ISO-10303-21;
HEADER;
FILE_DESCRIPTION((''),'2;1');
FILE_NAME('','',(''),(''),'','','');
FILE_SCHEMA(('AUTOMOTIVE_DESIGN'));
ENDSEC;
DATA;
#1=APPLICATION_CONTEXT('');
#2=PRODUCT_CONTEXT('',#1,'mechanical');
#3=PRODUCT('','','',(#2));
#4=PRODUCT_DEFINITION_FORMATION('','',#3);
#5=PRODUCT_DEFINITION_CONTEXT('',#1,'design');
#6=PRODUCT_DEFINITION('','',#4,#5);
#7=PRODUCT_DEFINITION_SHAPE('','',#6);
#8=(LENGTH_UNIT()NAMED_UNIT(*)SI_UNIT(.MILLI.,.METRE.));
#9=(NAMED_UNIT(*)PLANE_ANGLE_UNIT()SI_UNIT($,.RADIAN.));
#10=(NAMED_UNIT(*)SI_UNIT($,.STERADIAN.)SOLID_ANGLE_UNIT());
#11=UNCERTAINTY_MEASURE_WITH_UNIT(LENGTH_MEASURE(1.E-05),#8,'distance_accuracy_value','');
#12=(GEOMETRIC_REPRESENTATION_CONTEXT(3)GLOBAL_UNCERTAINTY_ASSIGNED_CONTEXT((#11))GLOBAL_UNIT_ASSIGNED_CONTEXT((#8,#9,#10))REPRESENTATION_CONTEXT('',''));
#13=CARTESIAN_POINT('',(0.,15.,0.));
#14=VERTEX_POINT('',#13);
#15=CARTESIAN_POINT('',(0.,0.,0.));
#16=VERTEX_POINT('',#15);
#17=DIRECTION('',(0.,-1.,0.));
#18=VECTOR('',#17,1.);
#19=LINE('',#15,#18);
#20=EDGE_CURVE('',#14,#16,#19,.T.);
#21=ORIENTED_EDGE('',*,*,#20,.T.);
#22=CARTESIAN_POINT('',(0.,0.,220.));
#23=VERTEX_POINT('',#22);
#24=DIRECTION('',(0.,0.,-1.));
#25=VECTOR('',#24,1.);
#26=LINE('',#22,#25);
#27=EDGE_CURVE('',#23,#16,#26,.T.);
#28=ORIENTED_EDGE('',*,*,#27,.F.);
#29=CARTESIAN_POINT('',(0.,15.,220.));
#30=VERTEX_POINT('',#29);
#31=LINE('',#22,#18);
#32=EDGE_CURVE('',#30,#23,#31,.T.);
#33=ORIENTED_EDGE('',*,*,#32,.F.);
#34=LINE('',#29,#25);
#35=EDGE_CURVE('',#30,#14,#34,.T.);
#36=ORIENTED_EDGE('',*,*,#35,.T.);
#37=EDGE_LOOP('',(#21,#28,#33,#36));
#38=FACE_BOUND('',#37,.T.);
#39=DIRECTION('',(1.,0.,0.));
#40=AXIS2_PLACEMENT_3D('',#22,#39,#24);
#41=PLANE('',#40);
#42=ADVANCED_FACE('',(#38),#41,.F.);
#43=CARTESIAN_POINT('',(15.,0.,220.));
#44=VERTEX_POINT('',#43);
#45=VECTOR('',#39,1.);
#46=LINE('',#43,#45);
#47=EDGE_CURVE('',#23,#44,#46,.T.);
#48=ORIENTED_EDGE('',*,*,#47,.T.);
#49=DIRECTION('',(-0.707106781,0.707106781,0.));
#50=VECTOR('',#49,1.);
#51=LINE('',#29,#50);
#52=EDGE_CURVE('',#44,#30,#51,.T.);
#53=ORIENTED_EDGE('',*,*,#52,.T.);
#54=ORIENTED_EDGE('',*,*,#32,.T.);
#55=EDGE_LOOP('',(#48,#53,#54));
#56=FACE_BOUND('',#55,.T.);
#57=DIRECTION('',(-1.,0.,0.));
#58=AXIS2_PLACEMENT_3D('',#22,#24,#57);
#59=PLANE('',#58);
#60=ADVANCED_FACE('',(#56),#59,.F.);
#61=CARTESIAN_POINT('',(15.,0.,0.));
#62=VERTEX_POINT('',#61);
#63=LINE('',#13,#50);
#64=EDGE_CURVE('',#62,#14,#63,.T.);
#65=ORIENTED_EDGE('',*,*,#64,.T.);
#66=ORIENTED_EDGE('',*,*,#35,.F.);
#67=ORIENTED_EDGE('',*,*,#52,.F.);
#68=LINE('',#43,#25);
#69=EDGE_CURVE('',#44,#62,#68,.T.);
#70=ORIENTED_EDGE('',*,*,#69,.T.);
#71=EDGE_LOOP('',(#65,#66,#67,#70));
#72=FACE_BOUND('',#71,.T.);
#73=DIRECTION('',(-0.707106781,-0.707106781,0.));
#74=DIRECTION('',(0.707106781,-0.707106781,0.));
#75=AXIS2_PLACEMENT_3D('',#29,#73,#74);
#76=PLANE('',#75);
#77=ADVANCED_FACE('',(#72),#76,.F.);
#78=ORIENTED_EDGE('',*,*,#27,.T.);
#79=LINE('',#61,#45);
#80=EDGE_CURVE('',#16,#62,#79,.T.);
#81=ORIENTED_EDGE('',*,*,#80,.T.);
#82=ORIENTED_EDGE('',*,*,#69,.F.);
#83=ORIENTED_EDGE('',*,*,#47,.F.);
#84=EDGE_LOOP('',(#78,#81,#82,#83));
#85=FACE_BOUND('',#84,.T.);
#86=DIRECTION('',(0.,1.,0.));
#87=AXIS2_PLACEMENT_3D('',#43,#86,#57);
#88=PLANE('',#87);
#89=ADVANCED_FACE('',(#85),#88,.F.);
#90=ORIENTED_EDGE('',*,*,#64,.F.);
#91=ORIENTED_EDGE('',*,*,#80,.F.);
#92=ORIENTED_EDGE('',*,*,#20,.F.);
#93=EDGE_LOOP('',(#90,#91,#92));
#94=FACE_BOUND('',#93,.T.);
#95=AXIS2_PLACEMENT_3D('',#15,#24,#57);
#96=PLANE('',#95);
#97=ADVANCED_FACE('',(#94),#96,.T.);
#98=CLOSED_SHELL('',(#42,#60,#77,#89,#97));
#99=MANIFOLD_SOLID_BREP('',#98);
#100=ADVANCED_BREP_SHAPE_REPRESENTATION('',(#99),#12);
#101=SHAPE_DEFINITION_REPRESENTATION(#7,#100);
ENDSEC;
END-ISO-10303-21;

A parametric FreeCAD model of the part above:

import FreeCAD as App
import Part
import Sketcher


def add_polygon(sketch, points):
    """Adds a closed chain of lines whose ends are joined by coincident constraints."""
    first, n = sketch.GeometryCount, len(points)
    for a, b in zip(points, points[1:] + points[:1]):
        sketch.addGeometry(Part.LineSegment(App.Vector(*a, 0), App.Vector(*b, 0)), False)
    for i in range(n):
        sketch.addConstraint(Sketcher.Constraint("Coincident", first + i, 2, first + (i + 1) % n, 1))

doc = App.newDocument("Part")
params = doc.addObject("Spreadsheet::Sheet", "Params")
for row, (alias, value) in enumerate([
    ("sketch1_width", "15 mm"),
    ("pad1_length", "220 mm"),
], start=1):
    params.set(f"A{row}", alias)
    params.set(f"B{row}", "=" + value)
    params.setAlias(f"B{row}", alias)

body = doc.addObject("PartDesign::Body", "Body")

sketch1 = doc.addObject("Sketcher::SketchObject", "Sketch")
body.addObject(sketch1)
sketch1.AttachmentSupport = (doc.XY_Plane, [""])
sketch1.MapMode = "FlatFace"
add_polygon(sketch1, [(0, 15), (0, 0), (15, 0)])
sketch1.addConstraint(Sketcher.Constraint("Vertical", 0))
sketch1.addConstraint(Sketcher.Constraint("Horizontal", 1))
sketch1.addConstraint(Sketcher.Constraint("Coincident", 0, 2, -1, 1))
sketch1.addConstraint(Sketcher.Constraint("Equal", 1, 0))
sketch1.addConstraint(Sketcher.Constraint("DistanceX", 1, 1, 1, 2, 15.0))
sketch1.setExpression("Constraints[7]", "Params.sketch1_width")
pad1 = doc.addObject("PartDesign::Pad", "Pad")
body.addObject(pad1)
pad1.Profile = sketch1
pad1.setExpression("Length", "Params.pad1_length")

doc.recompute()
